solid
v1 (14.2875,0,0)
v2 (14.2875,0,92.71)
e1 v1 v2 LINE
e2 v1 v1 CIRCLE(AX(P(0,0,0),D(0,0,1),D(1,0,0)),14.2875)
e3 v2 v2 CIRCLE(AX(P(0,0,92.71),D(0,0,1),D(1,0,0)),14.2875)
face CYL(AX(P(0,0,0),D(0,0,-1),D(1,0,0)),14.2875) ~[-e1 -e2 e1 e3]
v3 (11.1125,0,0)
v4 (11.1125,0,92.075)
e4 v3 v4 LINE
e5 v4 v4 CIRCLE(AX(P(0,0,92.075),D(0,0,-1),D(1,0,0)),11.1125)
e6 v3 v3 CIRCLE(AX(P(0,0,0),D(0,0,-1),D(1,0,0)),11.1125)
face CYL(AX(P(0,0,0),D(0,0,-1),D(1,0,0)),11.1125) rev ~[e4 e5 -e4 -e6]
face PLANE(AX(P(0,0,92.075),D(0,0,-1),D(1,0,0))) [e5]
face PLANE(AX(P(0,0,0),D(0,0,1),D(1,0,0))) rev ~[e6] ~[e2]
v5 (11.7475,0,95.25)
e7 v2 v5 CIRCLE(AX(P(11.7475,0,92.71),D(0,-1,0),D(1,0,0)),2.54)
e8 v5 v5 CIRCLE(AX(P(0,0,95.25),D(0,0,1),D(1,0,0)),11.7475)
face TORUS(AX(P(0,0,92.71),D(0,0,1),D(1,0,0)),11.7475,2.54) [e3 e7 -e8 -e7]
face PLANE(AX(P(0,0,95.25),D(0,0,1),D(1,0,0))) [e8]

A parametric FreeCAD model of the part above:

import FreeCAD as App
import Part
import Sketcher

V = App.Vector
Q = App.Units.Quantity


def edges_at(feature, points):
    """Names of the edges that pass closest to the given points."""
    edges = feature.Shape.Edges
    near = lambda p: min(range(len(edges)), key=lambda i: edges[i].distToShape(Part.Vertex(*p))[0])
    return sorted({f"Edge{near(p) + 1}" for p in points})

doc = App.newDocument("Part")
body = doc.addObject("PartDesign::Body", "Body")

# Sketch on XY plane
sketch1 = body.newObject("Sketcher::SketchObject", "Sketch")
sketch1.AttachmentSupport = (doc.getObject("XY_Plane"), [""])
sketch1.MapMode = "FlatFace"
sketch1.addGeometry(Part.Circle(V(0, 0, 0), V(0, 0, 1), 14.2875), False)
sketch1.addConstraint(Sketcher.Constraint("Coincident", 0, 3, -1, 1))
sketch1.addConstraint(Sketcher.Constraint("Diameter", 0, Q("1.125 in")))
pad1 = body.newObject("PartDesign::Pad", "Pad")
pad1.Profile = sketch1
pad1.Length = Q("3.75 in")

# Sketch on XY plane
sketch2 = body.newObject("Sketcher::SketchObject", "Sketch001")
sketch2.AttachmentSupport = (doc.getObject("XY_Plane"), [""])
sketch2.MapMode = "FlatFace"
sketch2.addGeometry(Part.Circle(V(0, 0, 0), V(0, 0, 1), 11.1125), False)
sketch2.addConstraint(Sketcher.Constraint("Coincident", 0, 3, -1, 1))
sketch2.addConstraint(Sketcher.Constraint("Diameter", 0, Q("0.875 in")))
pocket1 = body.newObject("PartDesign::Pocket", "Pocket")
pocket1.Profile = sketch2
pocket1.Length = Q("3.625 in")
pocket1.Reversed = True
doc.recompute()

fillet = body.newObject("PartDesign::Fillet", "Fillet")
fillet.Base = (pocket1, edges_at(pocket1, [(-14.287, 0, 95.25)]))
fillet.Radius = Q("0.1 in")

doc.recompute()
